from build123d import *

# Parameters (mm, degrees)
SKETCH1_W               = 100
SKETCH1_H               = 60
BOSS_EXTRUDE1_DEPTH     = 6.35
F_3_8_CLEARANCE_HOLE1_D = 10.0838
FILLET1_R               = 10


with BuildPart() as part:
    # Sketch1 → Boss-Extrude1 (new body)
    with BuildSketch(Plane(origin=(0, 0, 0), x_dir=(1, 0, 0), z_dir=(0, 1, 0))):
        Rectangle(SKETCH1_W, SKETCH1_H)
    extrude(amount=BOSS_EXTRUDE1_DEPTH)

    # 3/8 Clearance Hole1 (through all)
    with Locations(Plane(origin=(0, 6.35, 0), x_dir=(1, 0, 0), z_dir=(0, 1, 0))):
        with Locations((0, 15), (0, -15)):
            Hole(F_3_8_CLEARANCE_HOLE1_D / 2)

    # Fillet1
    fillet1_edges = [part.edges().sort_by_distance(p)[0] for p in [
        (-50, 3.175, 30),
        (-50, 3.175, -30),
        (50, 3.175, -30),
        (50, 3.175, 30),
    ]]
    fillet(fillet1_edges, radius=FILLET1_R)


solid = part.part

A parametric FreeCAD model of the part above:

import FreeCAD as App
import Part
import Sketcher

V = App.Vector


def edges_at(feature, points):
    """Names of the edges that pass closest to the given points."""
    edges = feature.Shape.Edges
    near = lambda p: min(range(len(edges)), key=lambda i: edges[i].distToShape(Part.Vertex(*p))[0])
    return sorted({f"Edge{near(p) + 1}" for p in points})


def add_polygon(sketch, points):
    """Adds a closed chain of lines whose ends are joined by coincident constraints."""
    first, n = sketch.GeometryCount, len(points)
    for a, b in zip(points, points[1:] + points[:1]):
        sketch.addGeometry(Part.LineSegment(App.Vector(*a, 0), App.Vector(*b, 0)), False)
    for i in range(n):
        sketch.addConstraint(Sketcher.Constraint("Coincident", first + i, 2, first + (i + 1) % n, 1))

doc = App.newDocument("Part")
body = doc.addObject("PartDesign::Body", "Body")

# Sketch on XZ plane
sketch1 = body.newObject("Sketcher::SketchObject", "Sketch")
sketch1.AttachmentSupport = (doc.getObject("XZ_Plane"), [""])
sketch1.MapMode = "FlatFace"
add_polygon(sketch1, [(-50, -30), (-50, 30), (50, 30), (50, -30)])  # lines 0-3
sketch1.addConstraint(Sketcher.Constraint("Vertical", 0))
sketch1.addConstraint(Sketcher.Constraint("Horizontal", 1))
sketch1.addConstraint(Sketcher.Constraint("Vertical", 2))
sketch1.addConstraint(Sketcher.Constraint("Horizontal", 3))
sketch1.addConstraint(Sketcher.Constraint("Symmetric", 0, 2, 2, 2, -1, 1))
sketch1.addConstraint(Sketcher.Constraint("DistanceX", 1, 1, 1, 2, 100.0))
sketch1.addConstraint(Sketcher.Constraint("DistanceY", 0, 1, 0, 2, 60.0))
pad1 = body.newObject("PartDesign::Pad", "Pad")
pad1.Profile = sketch1
pad1.Length = 6.35
pad1.Reversed = True

# Sketch on XZ plane
sketch2 = body.newObject("Sketcher::SketchObject", "Sketch001")
sketch2.AttachmentSupport = (doc.getObject("XZ_Plane"), [""])
sketch2.MapMode = "FlatFace"
sketch2.AttachmentOffset = App.Placement(V(0, 0, -6.35), App.Rotation())
sketch2.addGeometry(Part.Circle(V(0, -15, 0), V(0, 0, 1), 5), False)
sketch2.addGeometry(Part.Circle(V(0, 15, 0), V(0, 0, 1), 5), False)
sketch2.addConstraint(Sketcher.Constraint("Equal", 0, 1))
sketch2.addConstraint(Sketcher.Constraint("Symmetric", 0, 3, 1, 3, -1, 1))
sketch2.addConstraint(Sketcher.Constraint("PointOnObject", 0, 3, -2))
sketch2.addConstraint(Sketcher.Constraint("DistanceY", 0, 3, -1, 1, 15.0))
sketch2.addConstraint(Sketcher.Constraint("Diameter", 0, 10.0838))
doc.recompute()
hole = body.newObject("PartDesign::Hole", "Hole")
hole.Profile = sketch2
hole.ThreadType = "None"
hole.Diameter = 10.0838
hole.DepthType = "ThroughAll"
hole.Reversed = True
doc.recompute()

fillet = body.newObject("PartDesign::Fillet", "Fillet")
fillet.Base = (hole, edges_at(hole, [
    (-50, 3.175, 30),
    (-50, 3.175, -30),
    (50, 3.175, -30),
    (50, 3.175, 30),
]))
fillet.Radius = 10

doc.recompute()
